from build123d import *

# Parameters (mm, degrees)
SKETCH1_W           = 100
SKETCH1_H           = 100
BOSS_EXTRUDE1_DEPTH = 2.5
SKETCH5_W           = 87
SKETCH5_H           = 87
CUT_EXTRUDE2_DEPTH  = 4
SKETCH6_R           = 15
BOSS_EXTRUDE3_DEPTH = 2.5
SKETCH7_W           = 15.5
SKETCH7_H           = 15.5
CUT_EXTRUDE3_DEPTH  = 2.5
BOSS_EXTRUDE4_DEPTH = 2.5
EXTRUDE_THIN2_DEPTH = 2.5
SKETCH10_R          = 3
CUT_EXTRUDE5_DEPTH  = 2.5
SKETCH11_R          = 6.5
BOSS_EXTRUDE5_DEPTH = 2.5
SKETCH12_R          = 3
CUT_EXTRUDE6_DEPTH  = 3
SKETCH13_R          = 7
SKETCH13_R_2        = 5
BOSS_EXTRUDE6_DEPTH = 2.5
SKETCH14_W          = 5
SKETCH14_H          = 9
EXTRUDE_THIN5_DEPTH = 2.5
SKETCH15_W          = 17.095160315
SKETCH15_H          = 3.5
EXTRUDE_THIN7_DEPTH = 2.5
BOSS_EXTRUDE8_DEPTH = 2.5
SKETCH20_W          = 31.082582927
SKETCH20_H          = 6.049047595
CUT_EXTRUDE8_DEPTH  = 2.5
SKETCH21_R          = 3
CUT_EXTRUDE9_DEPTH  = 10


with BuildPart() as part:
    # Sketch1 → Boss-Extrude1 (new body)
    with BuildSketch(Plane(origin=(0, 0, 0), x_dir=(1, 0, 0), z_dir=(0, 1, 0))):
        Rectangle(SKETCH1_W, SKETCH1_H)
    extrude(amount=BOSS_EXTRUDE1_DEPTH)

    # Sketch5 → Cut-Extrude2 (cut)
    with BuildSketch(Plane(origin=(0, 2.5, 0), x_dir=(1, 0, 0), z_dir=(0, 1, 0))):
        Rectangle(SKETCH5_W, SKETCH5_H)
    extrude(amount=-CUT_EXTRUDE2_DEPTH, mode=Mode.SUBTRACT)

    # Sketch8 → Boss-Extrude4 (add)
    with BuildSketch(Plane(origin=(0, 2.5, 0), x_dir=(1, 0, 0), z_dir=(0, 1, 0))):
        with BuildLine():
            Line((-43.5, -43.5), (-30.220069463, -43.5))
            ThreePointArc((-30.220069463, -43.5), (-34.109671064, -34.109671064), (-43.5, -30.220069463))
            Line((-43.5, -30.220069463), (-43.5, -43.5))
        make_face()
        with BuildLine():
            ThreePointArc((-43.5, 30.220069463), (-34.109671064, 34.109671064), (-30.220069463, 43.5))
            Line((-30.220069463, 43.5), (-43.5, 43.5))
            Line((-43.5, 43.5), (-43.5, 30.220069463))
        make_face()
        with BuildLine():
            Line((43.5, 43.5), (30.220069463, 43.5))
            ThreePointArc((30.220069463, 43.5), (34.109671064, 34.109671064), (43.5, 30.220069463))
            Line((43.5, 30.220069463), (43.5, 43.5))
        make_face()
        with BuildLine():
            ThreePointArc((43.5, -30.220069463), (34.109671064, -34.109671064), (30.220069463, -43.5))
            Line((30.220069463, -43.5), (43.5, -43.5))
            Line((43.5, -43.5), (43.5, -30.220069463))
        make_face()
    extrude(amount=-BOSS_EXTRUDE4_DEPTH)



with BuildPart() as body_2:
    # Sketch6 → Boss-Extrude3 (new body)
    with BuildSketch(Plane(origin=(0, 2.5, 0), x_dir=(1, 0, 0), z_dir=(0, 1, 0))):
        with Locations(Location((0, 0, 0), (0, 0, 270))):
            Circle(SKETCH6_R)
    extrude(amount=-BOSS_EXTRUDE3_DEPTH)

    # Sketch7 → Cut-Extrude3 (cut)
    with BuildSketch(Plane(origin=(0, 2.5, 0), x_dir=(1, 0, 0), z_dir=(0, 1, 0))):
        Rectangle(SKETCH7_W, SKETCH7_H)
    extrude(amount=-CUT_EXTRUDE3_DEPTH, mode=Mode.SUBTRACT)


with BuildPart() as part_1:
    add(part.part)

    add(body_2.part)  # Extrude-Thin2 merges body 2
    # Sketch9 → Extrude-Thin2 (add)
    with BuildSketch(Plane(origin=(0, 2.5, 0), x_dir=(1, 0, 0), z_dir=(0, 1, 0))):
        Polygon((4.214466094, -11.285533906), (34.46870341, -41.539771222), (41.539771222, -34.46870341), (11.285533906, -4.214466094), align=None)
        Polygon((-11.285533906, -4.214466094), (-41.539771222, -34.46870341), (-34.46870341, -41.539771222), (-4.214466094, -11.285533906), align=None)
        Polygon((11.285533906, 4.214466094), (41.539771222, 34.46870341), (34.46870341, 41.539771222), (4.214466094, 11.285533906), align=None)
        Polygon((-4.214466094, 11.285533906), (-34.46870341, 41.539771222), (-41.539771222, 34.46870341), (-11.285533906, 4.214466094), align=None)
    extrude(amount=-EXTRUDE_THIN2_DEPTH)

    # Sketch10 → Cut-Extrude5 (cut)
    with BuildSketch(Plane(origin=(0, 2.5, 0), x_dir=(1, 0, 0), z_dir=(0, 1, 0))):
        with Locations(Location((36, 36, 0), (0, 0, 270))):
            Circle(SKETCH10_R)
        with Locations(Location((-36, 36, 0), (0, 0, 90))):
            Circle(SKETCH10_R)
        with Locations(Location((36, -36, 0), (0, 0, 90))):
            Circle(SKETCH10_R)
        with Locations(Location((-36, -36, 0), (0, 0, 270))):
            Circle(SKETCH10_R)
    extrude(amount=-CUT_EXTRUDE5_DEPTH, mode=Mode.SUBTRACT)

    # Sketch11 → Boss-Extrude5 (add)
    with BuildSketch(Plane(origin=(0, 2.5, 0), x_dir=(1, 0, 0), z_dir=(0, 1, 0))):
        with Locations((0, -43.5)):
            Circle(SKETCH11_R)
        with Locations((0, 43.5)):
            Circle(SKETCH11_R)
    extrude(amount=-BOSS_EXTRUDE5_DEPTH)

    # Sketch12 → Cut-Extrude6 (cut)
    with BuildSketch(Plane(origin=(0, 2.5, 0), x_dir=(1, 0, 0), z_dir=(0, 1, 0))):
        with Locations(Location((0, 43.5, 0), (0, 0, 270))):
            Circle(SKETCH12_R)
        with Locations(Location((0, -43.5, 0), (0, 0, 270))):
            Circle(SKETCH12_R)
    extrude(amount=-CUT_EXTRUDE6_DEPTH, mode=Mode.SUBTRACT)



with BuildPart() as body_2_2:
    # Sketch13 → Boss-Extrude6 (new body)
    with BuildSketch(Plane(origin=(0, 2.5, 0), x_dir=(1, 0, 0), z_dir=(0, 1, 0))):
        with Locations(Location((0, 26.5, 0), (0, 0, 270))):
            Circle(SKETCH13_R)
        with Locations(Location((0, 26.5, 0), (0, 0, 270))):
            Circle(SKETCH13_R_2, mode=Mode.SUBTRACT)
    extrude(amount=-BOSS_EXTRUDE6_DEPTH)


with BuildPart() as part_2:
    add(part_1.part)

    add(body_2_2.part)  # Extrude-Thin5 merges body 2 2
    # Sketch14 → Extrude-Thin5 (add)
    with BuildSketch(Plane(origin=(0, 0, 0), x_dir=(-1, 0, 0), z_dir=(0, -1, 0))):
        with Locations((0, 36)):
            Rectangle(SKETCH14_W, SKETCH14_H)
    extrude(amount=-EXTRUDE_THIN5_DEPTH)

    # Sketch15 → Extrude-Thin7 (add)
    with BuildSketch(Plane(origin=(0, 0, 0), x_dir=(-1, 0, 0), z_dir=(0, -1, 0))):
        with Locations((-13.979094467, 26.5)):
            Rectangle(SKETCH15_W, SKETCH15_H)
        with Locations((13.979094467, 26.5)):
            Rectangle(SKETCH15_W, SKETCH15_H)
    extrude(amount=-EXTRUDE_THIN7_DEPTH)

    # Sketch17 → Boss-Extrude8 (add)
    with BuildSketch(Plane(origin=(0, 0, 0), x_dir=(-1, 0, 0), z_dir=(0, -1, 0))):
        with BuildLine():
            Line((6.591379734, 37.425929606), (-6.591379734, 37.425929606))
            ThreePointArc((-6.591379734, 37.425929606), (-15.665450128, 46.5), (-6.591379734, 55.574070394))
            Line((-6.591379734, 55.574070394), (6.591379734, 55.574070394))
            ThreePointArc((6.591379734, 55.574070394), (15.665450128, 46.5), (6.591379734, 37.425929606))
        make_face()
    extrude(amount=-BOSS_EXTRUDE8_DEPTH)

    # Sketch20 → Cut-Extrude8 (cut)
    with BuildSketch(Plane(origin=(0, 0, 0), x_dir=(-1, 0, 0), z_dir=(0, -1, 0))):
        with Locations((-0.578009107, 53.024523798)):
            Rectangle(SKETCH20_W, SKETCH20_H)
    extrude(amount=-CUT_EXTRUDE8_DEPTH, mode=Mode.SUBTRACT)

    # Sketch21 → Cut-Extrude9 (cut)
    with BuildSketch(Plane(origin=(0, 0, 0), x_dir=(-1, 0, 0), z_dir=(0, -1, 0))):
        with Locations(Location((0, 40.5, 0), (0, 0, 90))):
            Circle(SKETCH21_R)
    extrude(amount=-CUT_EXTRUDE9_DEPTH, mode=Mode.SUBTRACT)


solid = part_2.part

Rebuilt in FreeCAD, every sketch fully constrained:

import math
import FreeCAD as App
import Part
import Sketcher
Q = App.Units.Quantity


def add_polygon(sketch, points):
    """Adds a closed chain of lines whose ends are joined by coincident constraints."""
    first, n = sketch.GeometryCount, len(points)
    for a, b in zip(points, points[1:] + points[:1]):
        sketch.addGeometry(Part.LineSegment(App.Vector(*a, 0), App.Vector(*b, 0)), False)
    for i in range(n):
        sketch.addConstraint(Sketcher.Constraint("Coincident", first + i, 2, first + (i + 1) % n, 1))

doc = App.newDocument("Part")
body = doc.addObject("PartDesign::Body", "Body")

sketch1 = doc.addObject("Sketcher::SketchObject", "Sketch")
body.addObject(sketch1)
sketch1.AttachmentSupport = (doc.XZ_Plane, [""])
sketch1.MapMode = "FlatFace"
add_polygon(sketch1, [(-50, -50), (-50, 50), (50, 50), (50, -50)])
sketch1.addConstraint([
    Sketcher.Constraint("Vertical", 0),
    Sketcher.Constraint("Horizontal", 1),
    Sketcher.Constraint("Vertical", 2),
    Sketcher.Constraint("Horizontal", 3),
    Sketcher.Constraint("Symmetric", 0, 2, 2, 2, -1, 1),
    Sketcher.Constraint("Equal", 3, 0),
    Sketcher.Constraint("DistanceX", 1, 1, 1, 2, Q("100 mm")),
])
pad1 = doc.addObject("PartDesign::Pad", "Pad")
body.addObject(pad1)
pad1.Profile = sketch1
pad1.Length = 2.5
pad1.Reversed = True

sketch2 = doc.addObject("Sketcher::SketchObject", "Sketch001")
body.addObject(sketch2)
sketch2.AttachmentSupport = (doc.XZ_Plane, [""])
sketch2.MapMode = "FlatFace"
sketch2.AttachmentOffset = App.Placement(App.Vector(0, 0, -2.5), App.Rotation())
add_polygon(sketch2, [(-44, -44), (-44, 44), (44, 44), (44, -44)])
sketch2.addConstraint([
    Sketcher.Constraint("Vertical", 0),
    Sketcher.Constraint("Horizontal", 1),
    Sketcher.Constraint("Vertical", 2),
    Sketcher.Constraint("Horizontal", 3),
    Sketcher.Constraint("Symmetric", 0, 2, 2, 2, -1, 1),
    Sketcher.Constraint("Equal", 3, 0),
    Sketcher.Constraint("DistanceX", 1, 1, 1, 2, Q("87 mm")),
])
pocket1 = doc.addObject("PartDesign::Pocket", "Pocket")
body.addObject(pocket1)
pocket1.Profile = sketch2
pocket1.Length = 4
pocket1.Reversed = True

sketch3 = doc.addObject("Sketcher::SketchObject", "Sketch002")
body.addObject(sketch3)
sketch3.AttachmentSupport = (doc.XZ_Plane, [""])
sketch3.MapMode = "FlatFace"
sketch3.AttachmentOffset = App.Placement(App.Vector(0, 0, -2.5), App.Rotation())
sketch3.addGeometry([
    Part.LineSegment(App.Vector(-44, 44, 0), App.Vector(-30, 44, 0)),
    Part.ArcOfCircle(Part.Circle(App.Vector(-44, 44, 0), App.Vector(0, 0, 1), 13), math.radians(-90), math.radians(0)),
    Part.LineSegment(App.Vector(-44, 30, 0), App.Vector(-44, 44, 0)),
    Part.ArcOfCircle(Part.Circle(App.Vector(-44, -44, 0), App.Vector(0, 0, 1), 13), math.radians(0), math.radians(90)),
    Part.LineSegment(App.Vector(-30, -44, 0), App.Vector(-44, -44, 0)),
    Part.LineSegment(App.Vector(-44, -44, 0), App.Vector(-44, -30, 0)),
    Part.LineSegment(App.Vector(44, -44, 0), App.Vector(30, -44, 0)),
    Part.ArcOfCircle(Part.Circle(App.Vector(44, -44, 0), App.Vector(0, 0, 1), 13), math.radians(90), math.radians(180)),
    Part.LineSegment(App.Vector(44, -30, 0), App.Vector(44, -44, 0)),
    Part.ArcOfCircle(Part.Circle(App.Vector(44, 44, 0), App.Vector(0, 0, 1), 13), math.radians(-180), math.radians(-90)),
    Part.LineSegment(App.Vector(30, 44, 0), App.Vector(44, 44, 0)),
    Part.LineSegment(App.Vector(44, 44, 0), App.Vector(44, 30, 0)),
], False)
sketch3.addConstraint([
    Sketcher.Constraint("Coincident", 0, 2, 1, 2),
    Sketcher.Constraint("Coincident", 1, 1, 2, 1),
    Sketcher.Constraint("Coincident", 2, 2, 0, 1),
    Sketcher.Constraint("Coincident", 3, 1, 4, 1),
    Sketcher.Constraint("Coincident", 4, 2, 5, 1),
    Sketcher.Constraint("Coincident", 5, 2, 3, 2),
    Sketcher.Constraint("Coincident", 6, 2, 7, 2),
    Sketcher.Constraint("Coincident", 7, 1, 8, 1),
    Sketcher.Constraint("Coincident", 8, 2, 6, 1),
    Sketcher.Constraint("Coincident", 9, 1, 10, 1),
    Sketcher.Constraint("Coincident", 10, 2, 11, 1),
    Sketcher.Constraint("Coincident", 11, 2, 9, 2),
    Sketcher.Constraint("Horizontal", 0),
    Sketcher.Constraint("Vertical", 2),
    Sketcher.Constraint("Horizontal", 4),
    Sketcher.Constraint("Vertical", 5),
    Sketcher.Constraint("Horizontal", 6),
    Sketcher.Constraint("Vertical", 8),
    Sketcher.Constraint("Horizontal", 10),
    Sketcher.Constraint("Vertical", 11),
    Sketcher.Constraint("Coincident", 2, 2, 1, 3),
    Sketcher.Constraint("Coincident", 4, 2, 3, 3),
    Sketcher.Constraint("Coincident", 8, 2, 7, 3),
    Sketcher.Constraint("Coincident", 10, 2, 9, 3),
    Sketcher.Constraint("Equal", 1, 3),
    Sketcher.Constraint("Equal", 3, 7),
    Sketcher.Constraint("Equal", 7, 9),
    Sketcher.Constraint("Symmetric", 1, 3, 7, 3, -1, 1),
    Sketcher.Constraint("Symmetric", 3, 3, 9, 3, -1, 1),
    Sketcher.Constraint("Symmetric", 3, 3, 7, 3, -2),
    Sketcher.Constraint("DistanceY", 3, 3, 1, 3, Q("87 mm")),
    Sketcher.Constraint("DistanceX", 3, 3, 7, 3, Q("87 mm")),
    Sketcher.Constraint("Radius", 1, Q("13.279931 mm")),
])
pad2 = doc.addObject("PartDesign::Pad", "Pad001")
body.addObject(pad2)
pad2.Profile = sketch3
pad2.Length = 2.5
body2 = doc.addObject("PartDesign::Body", "Body001")

sketch4 = doc.addObject("Sketcher::SketchObject", "Sketch003")
body2.addObject(sketch4)
sketch4.AttachmentSupport = (doc.getObject("XZ_Plane001"), [""])
sketch4.MapMode = "FlatFace"
sketch4.AttachmentOffset = App.Placement(App.Vector(0, 0, -2.5), App.Rotation())
sketch4.addGeometry(Part.Circle(App.Vector(0, 0, 0), App.Vector(0, 0, 1), 15), False)
sketch4.addConstraint([
    Sketcher.Constraint("Coincident", 0, 3, -1, 1),
    Sketcher.Constraint("Diameter", 0, Q("30 mm")),
])
pad3 = doc.addObject("PartDesign::Pad", "Pad002")
body2.addObject(pad3)
pad3.Profile = sketch4
pad3.Length = 2.5

sketch5 = doc.addObject("Sketcher::SketchObject", "Sketch004")
body2.addObject(sketch5)
sketch5.AttachmentSupport = (doc.getObject("XZ_Plane001"), [""])
sketch5.MapMode = "FlatFace"
sketch5.AttachmentOffset = App.Placement(App.Vector(0, 0, -2.5), App.Rotation())
add_polygon(sketch5, [(-8, -8), (-8, 8), (8, 8), (8, -8)])
sketch5.addConstraint([
    Sketcher.Constraint("Vertical", 0),
    Sketcher.Constraint("Horizontal", 1),
    Sketcher.Constraint("Vertical", 2),
    Sketcher.Constraint("Horizontal", 3),
    Sketcher.Constraint("Symmetric", 0, 2, 2, 2, -1, 1),
    Sketcher.Constraint("Equal", 3, 0),
    Sketcher.Constraint("DistanceX", 1, 1, 1, 2, Q("15.5 mm")),
])
pocket2 = doc.addObject("PartDesign::Pocket", "Pocket001")
body2.addObject(pocket2)
pocket2.Profile = sketch5
pocket2.Length = 2.5
pocket2.Reversed = True
body.AllowCompound = True
doc.recompute()

boolean = doc.addObject("PartDesign::Boolean", "Boolean")
body.addObject(boolean)
boolean.Type = "Fuse"
boolean.addObjects([body2])

sketch6 = doc.addObject("Sketcher::SketchObject", "Sketch005")
body.addObject(sketch6)
sketch6.AttachmentSupport = (doc.XZ_Plane, [""])
sketch6.MapMode = "FlatFace"
sketch6.AttachmentOffset = App.Placement(App.Vector(0, 0, -2.5), App.Rotation())
add_polygon(sketch6, [(4, 11), (34, 42), (42, 34), (11, 4)])
add_polygon(sketch6, [(-11, 4), (-42, 34), (-34, 42), (-4, 11)])
add_polygon(sketch6, [(11, -4), (42, -34), (34, -42), (4, -11)])
add_polygon(sketch6, [(-4, -11), (-34, -42), (-42, -34), (-11, -4)])
sketch6.addConstraint([
    Sketcher.Constraint("Symmetric", 4, 2, 8, 2, -1, 1),
    Sketcher.Constraint("Symmetric", 5, 2, 9, 2, -1, 1),
    Sketcher.Constraint("Symmetric", 6, 2, 10, 2, -1, 1),
    Sketcher.Constraint("Symmetric", 7, 2, 11, 2, -1, 1),
    Sketcher.Constraint("Symmetric", 0, 2, 12, 2, -1, 1),
    Sketcher.Constraint("Symmetric", 1, 2, 13, 2, -1, 1),
    Sketcher.Constraint("Symmetric", 2, 2, 14, 2, -1, 1),
    Sketcher.Constraint("Symmetric", 3, 2, 15, 2, -1, 1),
    Sketcher.Constraint("Symmetric", 1, 2, 4, 2, -2),
    Sketcher.Constraint("Symmetric", 0, 2, 5, 2, -2),
    Sketcher.Constraint("Symmetric", 3, 2, 6, 2, -2),
    Sketcher.Constraint("Symmetric", 2, 2, 7, 2, -2),
    Sketcher.Constraint("Perpendicular", 0, 1),
    Sketcher.Constraint("Perpendicular", 1, 2),
    Sketcher.Constraint("Perpendicular", 2, 3),
    Sketcher.Constraint("Parallel", 3, 4),
    Sketcher.Constraint("Distance", 1, Q("10 mm")),
    Sketcher.Constraint("DistanceX", 6, 2, 2, 2, Q("15.5 mm")),
    Sketcher.Constraint("DistanceY", 10, 2, 2, 2, Q("15.5 mm")),
    Sketcher.Constraint("DistanceY", -1, 1, 0, 2, Q("41.539771 mm")),
])
pad4 = doc.addObject("PartDesign::Pad", "Pad003")
body.addObject(pad4)
pad4.Profile = sketch6
pad4.Length = 2.5

sketch7 = doc.addObject("Sketcher::SketchObject", "Sketch006")
body.addObject(sketch7)
sketch7.AttachmentSupport = (doc.XZ_Plane, [""])
sketch7.MapMode = "FlatFace"
sketch7.AttachmentOffset = App.Placement(App.Vector(0, 0, -2.5), App.Rotation())
sketch7.addGeometry([
    Part.Circle(App.Vector(36, -36, 0), App.Vector(0, 0, 1), 3),
    Part.Circle(App.Vector(-36, -36, 0), App.Vector(0, 0, 1), 3),
    Part.Circle(App.Vector(36, 36, 0), App.Vector(0, 0, 1), 3),
    Part.Circle(App.Vector(-36, 36, 0), App.Vector(0, 0, 1), 3),
], False)
sketch7.addConstraint([
    Sketcher.Constraint("Equal", 0, 1),
    Sketcher.Constraint("Equal", 1, 2),
    Sketcher.Constraint("Equal", 2, 3),
    Sketcher.Constraint("Symmetric", 1, 3, 2, 3, -1, 1),
    Sketcher.Constraint("Symmetric", 0, 3, 3, 3, -1, 1),
    Sketcher.Constraint("Symmetric", 0, 3, 1, 3, -2),
    Sketcher.Constraint("Diameter", 0, Q("6 mm")),
    Sketcher.Constraint("DistanceX", -1, 1, 0, 3, Q("36 mm")),
    Sketcher.Constraint("DistanceY", 0, 3, -1, 1, Q("36 mm")),
])
pocket3 = doc.addObject("PartDesign::Pocket", "Pocket002")
body.addObject(pocket3)
pocket3.Profile = sketch7
pocket3.Length = 2.5
pocket3.Reversed = True

sketch8 = doc.addObject("Sketcher::SketchObject", "Sketch007")
body.addObject(sketch8)
sketch8.AttachmentSupport = (doc.XZ_Plane, [""])
sketch8.MapMode = "FlatFace"
sketch8.AttachmentOffset = App.Placement(App.Vector(0, 0, -2.5), App.Rotation())
sketch8.addGeometry([
    Part.Circle(App.Vector(0, 44, 0), App.Vector(0, 0, 1), 6),
    Part.Circle(App.Vector(0, -44, 0), App.Vector(0, 0, 1), 6),
], False)
sketch8.addConstraint([
    Sketcher.Constraint("Equal", 0, 1),
    Sketcher.Constraint("Symmetric", 0, 3, 1, 3, -1, 1),
    Sketcher.Constraint("PointOnObject", 0, 3, -2),
    Sketcher.Constraint("Diameter", 0, Q("13 mm")),
    Sketcher.Constraint("DistanceY", 1, 3, 0, 3, Q("87 mm")),
])
pad5 = doc.addObject("PartDesign::Pad", "Pad004")
body.addObject(pad5)
pad5.Profile = sketch8
pad5.Length = 2.5

sketch9 = doc.addObject("Sketcher::SketchObject", "Sketch008")
body.addObject(sketch9)
sketch9.AttachmentSupport = (doc.XZ_Plane, [""])
sketch9.MapMode = "FlatFace"
sketch9.AttachmentOffset = App.Placement(App.Vector(0, 0, -2.5), App.Rotation())
sketch9.addGeometry([
    Part.Circle(App.Vector(0, -43.5, 0), App.Vector(0, 0, 1), 3),
    Part.Circle(App.Vector(0, 43.5, 0), App.Vector(0, 0, 1), 3),
], False)
sketch9.addConstraint([
    Sketcher.Constraint("Equal", 0, 1),
    Sketcher.Constraint("Symmetric", 0, 3, 1, 3, -1, 1),
    Sketcher.Constraint("PointOnObject", 0, 3, -2),
    Sketcher.Constraint("Diameter", 0, Q("6 mm")),
    Sketcher.Constraint("DistanceY", 0, 3, 1, 3, Q("87 mm")),
])
pocket4 = doc.addObject("PartDesign::Pocket", "Pocket003")
body.addObject(pocket4)
pocket4.Profile = sketch9
pocket4.Length = 3
pocket4.Reversed = True
body3 = doc.addObject("PartDesign::Body", "Body002")

sketch10 = doc.addObject("Sketcher::SketchObject", "Sketch009")
body3.addObject(sketch10)
sketch10.AttachmentSupport = (doc.getObject("XZ_Plane002"), [""])
sketch10.MapMode = "FlatFace"
sketch10.AttachmentOffset = App.Placement(App.Vector(0, 0, -2.5), App.Rotation())
sketch10.addGeometry([
    Part.Circle(App.Vector(0, -26, 0), App.Vector(0, 0, 1), 7),
    Part.Circle(App.Vector(0, -26, 0), App.Vector(0, 0, 1), 5),
], False)
sketch10.addConstraint([
    Sketcher.Constraint("Coincident", 1, 3, 0, 3),
    Sketcher.Constraint("PointOnObject", 0, 3, -2),
    Sketcher.Constraint("Diameter", 0, Q("14 mm")),
    Sketcher.Constraint("Diameter", 1, Q("10 mm")),
    Sketcher.Constraint("DistanceY", 0, 3, -1, 1, Q("26.5 mm")),
])
pad6 = doc.addObject("PartDesign::Pad", "Pad005")
body3.addObject(pad6)
pad6.Profile = sketch10
pad6.Length = 2.5
body.AllowCompound = True
doc.recompute()

boolean2 = doc.addObject("PartDesign::Boolean", "Boolean001")
body.addObject(boolean2)
boolean2.Type = "Fuse"
boolean2.addObjects([body3])

sketch11 = doc.addObject("Sketcher::SketchObject", "Sketch010")
body.addObject(sketch11)
sketch11.AttachmentSupport = (doc.XZ_Plane, [""])
sketch11.MapMode = "FlatFace"
add_polygon(sketch11, [(2, -40), (2, -32), (-2, -32), (-2, -40)])
sketch11.addConstraint([
    Sketcher.Constraint("Vertical", 0),
    Sketcher.Constraint("Horizontal", 1),
    Sketcher.Constraint("Vertical", 2),
    Sketcher.Constraint("Horizontal", 3),
    Sketcher.Constraint("DistanceX", 1, 2, 1, 1, Q("5 mm")),
    Sketcher.Constraint("DistanceY", 0, 1, 0, 2, Q("9 mm")),
    Sketcher.Constraint("DistanceX", -1, 1, 0, 2, Q("2.5 mm")),
    Sketcher.Constraint("DistanceY", 0, 2, -1, 1, Q("31.5 mm")),
])
pad7 = doc.addObject("PartDesign::Pad", "Pad006")
body.addObject(pad7)
pad7.Profile = sketch11
pad7.Length = 2.5
pad7.Reversed = True

sketch12 = doc.addObject("Sketcher::SketchObject", "Sketch011")
body.addObject(sketch12)
sketch12.AttachmentSupport = (doc.XZ_Plane, [""])
sketch12.MapMode = "FlatFace"
add_polygon(sketch12, [(22.5, -28.2), (22.5, -24.8), (5.4, -24.8), (5.4, -28.2)])
add_polygon(sketch12, [(-5.4, -28.2), (-5.4, -24.8), (-22.5, -24.8), (-22.5, -28.2)])
sketch12.addConstraint([
    Sketcher.Constraint("Vertical", 0),
    Sketcher.Constraint("Horizontal", 1),
    Sketcher.Constraint("Vertical", 2),
    Sketcher.Constraint("Horizontal", 3),
    Sketcher.Constraint("Vertical", 4),
    Sketcher.Constraint("Horizontal", 5),
    Sketcher.Constraint("Vertical", 6),
    Sketcher.Constraint("Horizontal", 7),
    Sketcher.Constraint("Symmetric", 1, 2, 4, 2, -2),
    Sketcher.Constraint("Symmetric", 3, 2, 6, 2, -2),
    Sketcher.Constraint("DistanceY", 0, 1, 0, 2, Q("3.5 mm")),
    Sketcher.Constraint("DistanceY", 0, 2, -1, 1, Q("24.75 mm")),
    Sketcher.Constraint("DistanceX", 1, 2, 1, 1, Q("17.09516 mm")),
    Sketcher.Constraint("DistanceX", 4, 2, 1, 2, Q("10.863029 mm")),
])
pad8 = doc.addObject("PartDesign::Pad", "Pad007")
body.addObject(pad8)
pad8.Profile = sketch12
pad8.Length = 2.5
pad8.Reversed = True

sketch13 = doc.addObject("Sketcher::SketchObject", "Sketch012")
body.addObject(sketch13)
sketch13.AttachmentSupport = (doc.XZ_Plane, [""])
sketch13.MapMode = "FlatFace"
sketch13.addGeometry([
    Part.LineSegment(App.Vector(7, -37, 0), App.Vector(-7, -37, 0)),
    Part.ArcOfCircle(Part.Circle(App.Vector(-7, -46, 0), App.Vector(0, 0, 1), 9), math.radians(90), math.radians(270)),
    Part.LineSegment(App.Vector(-7, -56, 0), App.Vector(7, -56, 0)),
    Part.ArcOfCircle(Part.Circle(App.Vector(7, -46, 0), App.Vector(0, 0, 1), 9), math.radians(-90), math.radians(90)),
], False)
sketch13.addConstraint([
    Sketcher.Constraint("Tangent", 0, 2, 1, 1),
    Sketcher.Constraint("Tangent", 1, 2, 2, 1),
    Sketcher.Constraint("Tangent", 2, 2, 3, 1),
    Sketcher.Constraint("Tangent", 3, 2, 0, 1),
    Sketcher.Constraint("Horizontal", 0),
    Sketcher.Constraint("Horizontal", 2),
    Sketcher.Constraint("DistanceY", 1, 3, -1, 1, Q("46.5 mm")),
    Sketcher.Constraint("Radius", 1, Q("9.07407 mm")),
    Sketcher.Constraint("DistanceX", 0, 2, 0, 1, Q("13.182759 mm")),
    Sketcher.Constraint("DistanceX", 1, 3, -1, 1, Q("6.59138 mm")),
])
pad9 = doc.addObject("PartDesign::Pad", "Pad008")
body.addObject(pad9)
pad9.Profile = sketch13
pad9.Length = 2.5
pad9.Reversed = True

sketch14 = doc.addObject("Sketcher::SketchObject", "Sketch013")
body.addObject(sketch14)
sketch14.AttachmentSupport = (doc.XZ_Plane, [""])
sketch14.MapMode = "FlatFace"
add_polygon(sketch14, [(16, -56), (16, -50), (-15, -50), (-15, -56)])
sketch14.addConstraint([
    Sketcher.Constraint("Vertical", 0),
    Sketcher.Constraint("Horizontal", 1),
    Sketcher.Constraint("Vertical", 2),
    Sketcher.Constraint("Horizontal", 3),
    Sketcher.Constraint("DistanceY", 0, 2, -1, 1, Q("50 mm")),
    Sketcher.Constraint("DistanceX", -1, 1, 0, 2, Q("16.119301 mm")),
    Sketcher.Constraint("DistanceX", 1, 2, 1, 1, Q("31.082583 mm")),
    Sketcher.Constraint("DistanceY", 0, 1, 0, 2, Q("6.049048 mm")),
])
pocket5 = doc.addObject("PartDesign::Pocket", "Pocket004")
body.addObject(pocket5)
pocket5.Profile = sketch14
pocket5.Length = 2.5

sketch15 = doc.addObject("Sketcher::SketchObject", "Sketch014")
body.addObject(sketch15)
sketch15.AttachmentSupport = (doc.XZ_Plane, [""])
sketch15.MapMode = "FlatFace"
sketch15.addGeometry(Part.Circle(App.Vector(0, -40.5, 0), App.Vector(0, 0, 1), 3), False)
sketch15.addConstraint([
    Sketcher.Constraint("PointOnObject", 0, 3, -2),
    Sketcher.Constraint("Diameter", 0, Q("6 mm")),
    Sketcher.Constraint("DistanceY", 0, 3, -1, 1, Q("40.5 mm")),
])
pocket6 = doc.addObject("PartDesign::Pocket", "Pocket005")
body.addObject(pocket6)
pocket6.Profile = sketch15
pocket6.Length = 10

doc.recompute()
